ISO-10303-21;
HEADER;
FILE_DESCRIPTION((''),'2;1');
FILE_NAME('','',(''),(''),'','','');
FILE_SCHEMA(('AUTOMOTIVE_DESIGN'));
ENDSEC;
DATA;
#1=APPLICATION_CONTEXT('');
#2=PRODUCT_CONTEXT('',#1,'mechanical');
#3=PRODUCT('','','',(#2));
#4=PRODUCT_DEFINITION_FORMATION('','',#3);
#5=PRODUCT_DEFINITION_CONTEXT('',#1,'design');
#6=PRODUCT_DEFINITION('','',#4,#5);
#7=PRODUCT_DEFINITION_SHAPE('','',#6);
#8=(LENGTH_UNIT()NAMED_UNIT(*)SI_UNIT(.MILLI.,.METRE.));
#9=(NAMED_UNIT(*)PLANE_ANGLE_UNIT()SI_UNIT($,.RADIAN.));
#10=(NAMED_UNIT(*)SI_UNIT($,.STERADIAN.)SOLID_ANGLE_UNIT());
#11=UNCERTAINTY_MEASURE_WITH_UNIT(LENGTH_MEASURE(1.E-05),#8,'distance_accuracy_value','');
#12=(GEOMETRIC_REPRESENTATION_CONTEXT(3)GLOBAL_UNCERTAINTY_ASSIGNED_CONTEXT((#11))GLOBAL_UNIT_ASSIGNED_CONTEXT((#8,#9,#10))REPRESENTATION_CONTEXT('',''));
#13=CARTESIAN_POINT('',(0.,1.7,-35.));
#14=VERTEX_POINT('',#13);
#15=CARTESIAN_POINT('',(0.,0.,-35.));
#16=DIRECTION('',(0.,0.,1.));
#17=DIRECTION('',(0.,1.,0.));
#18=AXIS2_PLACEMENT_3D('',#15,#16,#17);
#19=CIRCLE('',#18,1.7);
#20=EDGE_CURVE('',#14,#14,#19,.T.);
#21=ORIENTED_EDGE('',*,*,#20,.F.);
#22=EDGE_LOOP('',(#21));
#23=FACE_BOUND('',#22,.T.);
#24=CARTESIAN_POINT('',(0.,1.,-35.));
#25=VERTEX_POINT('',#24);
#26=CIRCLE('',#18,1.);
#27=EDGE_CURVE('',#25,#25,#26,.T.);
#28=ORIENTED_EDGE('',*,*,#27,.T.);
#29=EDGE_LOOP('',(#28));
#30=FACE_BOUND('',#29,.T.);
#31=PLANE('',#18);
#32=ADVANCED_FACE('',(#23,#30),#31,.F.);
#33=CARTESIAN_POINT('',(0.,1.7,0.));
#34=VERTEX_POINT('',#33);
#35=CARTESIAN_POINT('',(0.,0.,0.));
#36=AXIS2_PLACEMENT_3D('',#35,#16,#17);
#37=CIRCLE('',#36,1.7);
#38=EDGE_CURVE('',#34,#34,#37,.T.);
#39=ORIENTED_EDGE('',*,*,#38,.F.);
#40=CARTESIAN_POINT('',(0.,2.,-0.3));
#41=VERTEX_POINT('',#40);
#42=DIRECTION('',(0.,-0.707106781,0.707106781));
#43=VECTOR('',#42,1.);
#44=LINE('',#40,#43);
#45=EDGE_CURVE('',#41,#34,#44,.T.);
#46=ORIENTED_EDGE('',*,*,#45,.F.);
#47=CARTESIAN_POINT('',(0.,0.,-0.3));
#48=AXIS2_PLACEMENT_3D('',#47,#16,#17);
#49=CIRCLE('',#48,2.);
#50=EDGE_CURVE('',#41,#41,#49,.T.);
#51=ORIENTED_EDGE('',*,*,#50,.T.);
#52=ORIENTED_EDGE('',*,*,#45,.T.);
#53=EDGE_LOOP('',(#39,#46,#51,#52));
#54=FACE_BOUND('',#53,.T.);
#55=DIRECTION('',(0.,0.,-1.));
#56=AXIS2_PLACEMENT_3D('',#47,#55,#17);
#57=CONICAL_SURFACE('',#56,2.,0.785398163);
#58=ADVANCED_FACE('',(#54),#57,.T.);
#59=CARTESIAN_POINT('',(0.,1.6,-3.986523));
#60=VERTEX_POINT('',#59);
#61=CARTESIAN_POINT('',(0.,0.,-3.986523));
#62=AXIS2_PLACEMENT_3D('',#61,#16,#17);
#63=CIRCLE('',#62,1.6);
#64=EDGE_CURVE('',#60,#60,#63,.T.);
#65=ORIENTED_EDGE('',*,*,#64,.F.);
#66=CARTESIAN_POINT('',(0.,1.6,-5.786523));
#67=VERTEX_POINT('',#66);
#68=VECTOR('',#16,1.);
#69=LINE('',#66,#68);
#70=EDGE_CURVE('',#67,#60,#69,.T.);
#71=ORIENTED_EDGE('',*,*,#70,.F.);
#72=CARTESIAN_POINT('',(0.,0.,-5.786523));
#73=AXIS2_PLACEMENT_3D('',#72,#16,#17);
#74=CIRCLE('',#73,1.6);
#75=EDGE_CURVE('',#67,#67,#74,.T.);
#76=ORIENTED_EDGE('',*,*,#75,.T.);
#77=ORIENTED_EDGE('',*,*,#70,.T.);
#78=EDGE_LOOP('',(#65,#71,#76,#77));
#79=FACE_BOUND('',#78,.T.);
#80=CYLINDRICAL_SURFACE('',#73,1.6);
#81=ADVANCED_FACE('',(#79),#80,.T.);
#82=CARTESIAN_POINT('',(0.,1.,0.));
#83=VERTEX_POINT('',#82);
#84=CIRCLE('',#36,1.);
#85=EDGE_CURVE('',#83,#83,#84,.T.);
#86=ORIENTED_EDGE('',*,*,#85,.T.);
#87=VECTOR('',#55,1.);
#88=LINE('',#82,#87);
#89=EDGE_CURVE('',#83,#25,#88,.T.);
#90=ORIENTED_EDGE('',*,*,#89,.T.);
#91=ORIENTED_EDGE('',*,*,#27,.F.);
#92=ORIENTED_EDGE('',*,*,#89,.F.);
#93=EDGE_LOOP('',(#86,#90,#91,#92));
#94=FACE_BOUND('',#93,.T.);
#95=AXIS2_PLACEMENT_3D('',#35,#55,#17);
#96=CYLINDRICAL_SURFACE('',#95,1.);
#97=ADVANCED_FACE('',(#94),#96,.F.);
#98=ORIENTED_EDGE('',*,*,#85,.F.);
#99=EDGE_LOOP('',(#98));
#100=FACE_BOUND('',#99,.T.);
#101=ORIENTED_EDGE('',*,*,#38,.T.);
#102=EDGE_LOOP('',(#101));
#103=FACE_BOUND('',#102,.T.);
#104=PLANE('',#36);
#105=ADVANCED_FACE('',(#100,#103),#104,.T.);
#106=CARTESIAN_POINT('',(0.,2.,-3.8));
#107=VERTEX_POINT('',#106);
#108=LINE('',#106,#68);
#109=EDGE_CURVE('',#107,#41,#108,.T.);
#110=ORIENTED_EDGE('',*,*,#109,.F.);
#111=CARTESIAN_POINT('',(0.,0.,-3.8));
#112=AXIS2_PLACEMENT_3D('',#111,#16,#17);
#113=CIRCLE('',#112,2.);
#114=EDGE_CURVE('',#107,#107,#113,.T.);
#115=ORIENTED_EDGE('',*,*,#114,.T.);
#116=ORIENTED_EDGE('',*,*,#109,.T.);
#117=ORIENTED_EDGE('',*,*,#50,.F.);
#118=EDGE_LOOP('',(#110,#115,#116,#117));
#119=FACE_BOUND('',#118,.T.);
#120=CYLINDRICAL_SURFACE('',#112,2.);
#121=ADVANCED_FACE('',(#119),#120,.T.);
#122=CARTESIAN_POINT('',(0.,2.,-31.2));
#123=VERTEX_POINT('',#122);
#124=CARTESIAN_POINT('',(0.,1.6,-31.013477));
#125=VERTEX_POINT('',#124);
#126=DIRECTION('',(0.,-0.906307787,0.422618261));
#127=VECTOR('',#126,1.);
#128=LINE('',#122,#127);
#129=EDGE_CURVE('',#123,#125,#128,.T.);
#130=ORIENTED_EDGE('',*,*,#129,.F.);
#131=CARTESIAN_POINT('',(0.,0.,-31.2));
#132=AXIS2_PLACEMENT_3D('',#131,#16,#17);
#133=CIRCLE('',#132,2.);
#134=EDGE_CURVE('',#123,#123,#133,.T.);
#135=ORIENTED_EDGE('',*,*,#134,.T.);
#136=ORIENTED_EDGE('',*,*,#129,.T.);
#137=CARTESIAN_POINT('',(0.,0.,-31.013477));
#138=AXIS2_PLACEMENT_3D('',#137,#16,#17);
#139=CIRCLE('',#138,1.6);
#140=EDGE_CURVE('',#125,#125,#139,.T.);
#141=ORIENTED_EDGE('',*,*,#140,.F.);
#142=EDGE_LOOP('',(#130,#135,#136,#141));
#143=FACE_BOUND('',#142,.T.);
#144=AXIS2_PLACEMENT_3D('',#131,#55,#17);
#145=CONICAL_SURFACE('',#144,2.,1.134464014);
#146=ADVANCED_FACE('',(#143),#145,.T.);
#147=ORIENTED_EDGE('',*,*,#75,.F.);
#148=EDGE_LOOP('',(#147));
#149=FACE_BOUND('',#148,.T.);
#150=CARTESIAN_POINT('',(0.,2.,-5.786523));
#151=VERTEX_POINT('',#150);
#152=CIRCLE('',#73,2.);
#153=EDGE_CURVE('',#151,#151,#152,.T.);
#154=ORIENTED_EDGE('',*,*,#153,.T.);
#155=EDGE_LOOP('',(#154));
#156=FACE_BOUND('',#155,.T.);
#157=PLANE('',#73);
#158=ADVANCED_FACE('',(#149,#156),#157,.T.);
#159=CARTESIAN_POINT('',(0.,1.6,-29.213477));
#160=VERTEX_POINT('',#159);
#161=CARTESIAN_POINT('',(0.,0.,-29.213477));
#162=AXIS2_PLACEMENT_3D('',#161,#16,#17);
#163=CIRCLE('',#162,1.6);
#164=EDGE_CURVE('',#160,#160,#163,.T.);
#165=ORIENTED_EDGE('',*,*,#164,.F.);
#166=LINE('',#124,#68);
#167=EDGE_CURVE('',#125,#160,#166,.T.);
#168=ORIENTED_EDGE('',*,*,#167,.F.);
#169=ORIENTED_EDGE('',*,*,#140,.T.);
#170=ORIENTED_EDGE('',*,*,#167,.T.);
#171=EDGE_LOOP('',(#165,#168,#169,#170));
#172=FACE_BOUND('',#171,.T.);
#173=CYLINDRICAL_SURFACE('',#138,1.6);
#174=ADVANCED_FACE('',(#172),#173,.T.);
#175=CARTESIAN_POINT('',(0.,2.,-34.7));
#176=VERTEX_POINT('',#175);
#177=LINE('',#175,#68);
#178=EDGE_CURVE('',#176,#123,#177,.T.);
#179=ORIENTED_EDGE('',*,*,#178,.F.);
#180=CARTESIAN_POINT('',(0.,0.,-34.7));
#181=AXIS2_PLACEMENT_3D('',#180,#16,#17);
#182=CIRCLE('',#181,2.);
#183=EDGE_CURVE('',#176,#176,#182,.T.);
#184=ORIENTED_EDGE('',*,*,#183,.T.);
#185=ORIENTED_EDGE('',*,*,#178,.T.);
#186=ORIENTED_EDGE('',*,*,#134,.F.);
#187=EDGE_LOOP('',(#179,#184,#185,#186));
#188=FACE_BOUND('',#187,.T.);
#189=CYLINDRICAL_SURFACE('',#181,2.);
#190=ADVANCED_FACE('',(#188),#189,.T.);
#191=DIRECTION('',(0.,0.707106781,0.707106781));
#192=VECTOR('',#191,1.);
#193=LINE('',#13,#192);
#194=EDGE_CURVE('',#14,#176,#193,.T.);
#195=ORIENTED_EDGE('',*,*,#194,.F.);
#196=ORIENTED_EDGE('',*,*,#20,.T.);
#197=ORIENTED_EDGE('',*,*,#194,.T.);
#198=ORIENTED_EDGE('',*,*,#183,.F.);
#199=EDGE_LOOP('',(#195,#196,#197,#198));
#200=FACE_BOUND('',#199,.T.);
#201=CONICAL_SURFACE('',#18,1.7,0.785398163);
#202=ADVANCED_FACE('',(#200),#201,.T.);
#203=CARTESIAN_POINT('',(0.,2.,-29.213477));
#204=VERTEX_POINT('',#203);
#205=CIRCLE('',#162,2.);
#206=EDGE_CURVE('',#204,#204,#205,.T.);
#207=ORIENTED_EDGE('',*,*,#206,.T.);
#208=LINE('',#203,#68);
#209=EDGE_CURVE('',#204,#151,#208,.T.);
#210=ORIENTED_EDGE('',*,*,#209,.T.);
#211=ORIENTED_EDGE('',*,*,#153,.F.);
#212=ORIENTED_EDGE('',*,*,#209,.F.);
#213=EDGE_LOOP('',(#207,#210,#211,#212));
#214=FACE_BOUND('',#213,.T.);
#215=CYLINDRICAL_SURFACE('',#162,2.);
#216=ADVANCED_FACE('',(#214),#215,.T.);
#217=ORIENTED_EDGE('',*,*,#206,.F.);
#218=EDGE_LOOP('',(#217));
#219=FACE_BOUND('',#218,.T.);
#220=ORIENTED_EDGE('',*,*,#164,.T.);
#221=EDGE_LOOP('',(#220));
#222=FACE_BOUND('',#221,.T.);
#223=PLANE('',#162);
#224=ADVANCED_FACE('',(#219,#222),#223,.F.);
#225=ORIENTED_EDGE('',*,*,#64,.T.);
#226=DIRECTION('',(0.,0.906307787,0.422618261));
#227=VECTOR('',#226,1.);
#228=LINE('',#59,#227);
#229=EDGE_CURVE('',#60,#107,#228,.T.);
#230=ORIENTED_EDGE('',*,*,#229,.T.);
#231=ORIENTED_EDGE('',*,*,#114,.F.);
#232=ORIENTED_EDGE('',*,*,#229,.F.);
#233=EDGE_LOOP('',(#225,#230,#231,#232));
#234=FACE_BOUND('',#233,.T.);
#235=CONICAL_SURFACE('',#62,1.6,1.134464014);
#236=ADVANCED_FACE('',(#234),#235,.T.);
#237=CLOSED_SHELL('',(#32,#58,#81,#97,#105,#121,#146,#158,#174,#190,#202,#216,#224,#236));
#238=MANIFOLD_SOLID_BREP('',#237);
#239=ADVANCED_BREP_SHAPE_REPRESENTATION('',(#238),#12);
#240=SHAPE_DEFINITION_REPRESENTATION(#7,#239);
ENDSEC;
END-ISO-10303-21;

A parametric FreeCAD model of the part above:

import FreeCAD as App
import Part
import Sketcher
from FreeCAD import Vector
Q = App.Units.Quantity


def add_polygon(sketch, points):
    """Adds a closed chain of lines whose ends are joined by coincident constraints."""
    first, n = sketch.GeometryCount, len(points)
    for a, b in zip(points, points[1:] + points[:1]):
        sketch.addGeometry(Part.LineSegment(App.Vector(*a, 0), App.Vector(*b, 0)), False)
    for i in range(n):
        sketch.addConstraint(Sketcher.Constraint("Coincident", first + i, 2, first + (i + 1) % n, 1))

doc = App.newDocument("Part")
body = doc.addObject("PartDesign::Body", "Body")

# Sketch on YZ plane
sketch1 = body.newObject("Sketcher::SketchObject", "Sketch")
sketch1.AttachmentSupport = (doc.getObject("YZ_Plane"), [""])
sketch1.MapMode = "FlatFace"
add_polygon(sketch1, [(1, 0), (1, -35), (1.7, -35), (2, -34.7), (2, -31.2), (1.6, -31.01), (1.6, -29.21), (2, -29.21), (2, -5.79), (1.6, -5.79), (1.6, -3.99), (2, -3.8), (2, -0.3), (1.7, 0)])  # lines 0-13
sketch1.addConstraint([
    Sketcher.Constraint("Vertical", 0),
    Sketcher.Constraint("Horizontal", 1),
    Sketcher.Constraint("Vertical", 3),
    Sketcher.Constraint("Vertical", 5),
    Sketcher.Constraint("Horizontal", 6),
    Sketcher.Constraint("Vertical", 7),
    Sketcher.Constraint("Horizontal", 8),
    Sketcher.Constraint("Vertical", 9),
    Sketcher.Constraint("Vertical", 11),
    Sketcher.Constraint("Horizontal", 13),
    Sketcher.Constraint("PointOnObject", 12, 2, -1),
    Sketcher.Constraint("Perpendicular", 2, 12),
    Sketcher.Constraint("Vertical", 3, 2, 6, 2),
    Sketcher.Constraint("Vertical", 5, 2, 8, 2),
    Sketcher.Constraint("Vertical", 7, 2, 10, 2),
    Sketcher.Constraint("Vertical", 1, 2, 12, 2),
    Sketcher.Constraint("Equal", 5, 9),
    Sketcher.Constraint("Equal", 3, 11),
    Sketcher.Constraint("Equal", 4, 10),
    Sketcher.Constraint("Equal", 2, 12),
    Sketcher.Constraint("DistanceY", 0, 2, 0, 1, Q("35 mm")),
    Sketcher.Constraint("Angle", 4, Q("155 deg")),
    Sketcher.Constraint("DistanceX", 1, 1, 1, 2, Q("0.7 mm")),
    Sketcher.Constraint("DistanceX", 6, 1, 6, 2, Q("0.4 mm")),
    Sketcher.Constraint("DistanceY", 3, 1, 3, 2, Q("3.5 mm")),
    Sketcher.Constraint("DistanceY", 5, 1, 5, 2, Q("1.8 mm")),
    Sketcher.Constraint("DistanceX", -1, 1, 0, 2, Q("1 mm")),
    Sketcher.Constraint("DistanceX", -1, 1, 2, 2, Q("2 mm")),
])
revolution = body.newObject("PartDesign::Revolution", "Revolution")
revolution.Profile = sketch1
revolution.ReferenceAxis = (sketch1, ["V_Axis"])
revolution.Angle = 360

doc.recompute()
